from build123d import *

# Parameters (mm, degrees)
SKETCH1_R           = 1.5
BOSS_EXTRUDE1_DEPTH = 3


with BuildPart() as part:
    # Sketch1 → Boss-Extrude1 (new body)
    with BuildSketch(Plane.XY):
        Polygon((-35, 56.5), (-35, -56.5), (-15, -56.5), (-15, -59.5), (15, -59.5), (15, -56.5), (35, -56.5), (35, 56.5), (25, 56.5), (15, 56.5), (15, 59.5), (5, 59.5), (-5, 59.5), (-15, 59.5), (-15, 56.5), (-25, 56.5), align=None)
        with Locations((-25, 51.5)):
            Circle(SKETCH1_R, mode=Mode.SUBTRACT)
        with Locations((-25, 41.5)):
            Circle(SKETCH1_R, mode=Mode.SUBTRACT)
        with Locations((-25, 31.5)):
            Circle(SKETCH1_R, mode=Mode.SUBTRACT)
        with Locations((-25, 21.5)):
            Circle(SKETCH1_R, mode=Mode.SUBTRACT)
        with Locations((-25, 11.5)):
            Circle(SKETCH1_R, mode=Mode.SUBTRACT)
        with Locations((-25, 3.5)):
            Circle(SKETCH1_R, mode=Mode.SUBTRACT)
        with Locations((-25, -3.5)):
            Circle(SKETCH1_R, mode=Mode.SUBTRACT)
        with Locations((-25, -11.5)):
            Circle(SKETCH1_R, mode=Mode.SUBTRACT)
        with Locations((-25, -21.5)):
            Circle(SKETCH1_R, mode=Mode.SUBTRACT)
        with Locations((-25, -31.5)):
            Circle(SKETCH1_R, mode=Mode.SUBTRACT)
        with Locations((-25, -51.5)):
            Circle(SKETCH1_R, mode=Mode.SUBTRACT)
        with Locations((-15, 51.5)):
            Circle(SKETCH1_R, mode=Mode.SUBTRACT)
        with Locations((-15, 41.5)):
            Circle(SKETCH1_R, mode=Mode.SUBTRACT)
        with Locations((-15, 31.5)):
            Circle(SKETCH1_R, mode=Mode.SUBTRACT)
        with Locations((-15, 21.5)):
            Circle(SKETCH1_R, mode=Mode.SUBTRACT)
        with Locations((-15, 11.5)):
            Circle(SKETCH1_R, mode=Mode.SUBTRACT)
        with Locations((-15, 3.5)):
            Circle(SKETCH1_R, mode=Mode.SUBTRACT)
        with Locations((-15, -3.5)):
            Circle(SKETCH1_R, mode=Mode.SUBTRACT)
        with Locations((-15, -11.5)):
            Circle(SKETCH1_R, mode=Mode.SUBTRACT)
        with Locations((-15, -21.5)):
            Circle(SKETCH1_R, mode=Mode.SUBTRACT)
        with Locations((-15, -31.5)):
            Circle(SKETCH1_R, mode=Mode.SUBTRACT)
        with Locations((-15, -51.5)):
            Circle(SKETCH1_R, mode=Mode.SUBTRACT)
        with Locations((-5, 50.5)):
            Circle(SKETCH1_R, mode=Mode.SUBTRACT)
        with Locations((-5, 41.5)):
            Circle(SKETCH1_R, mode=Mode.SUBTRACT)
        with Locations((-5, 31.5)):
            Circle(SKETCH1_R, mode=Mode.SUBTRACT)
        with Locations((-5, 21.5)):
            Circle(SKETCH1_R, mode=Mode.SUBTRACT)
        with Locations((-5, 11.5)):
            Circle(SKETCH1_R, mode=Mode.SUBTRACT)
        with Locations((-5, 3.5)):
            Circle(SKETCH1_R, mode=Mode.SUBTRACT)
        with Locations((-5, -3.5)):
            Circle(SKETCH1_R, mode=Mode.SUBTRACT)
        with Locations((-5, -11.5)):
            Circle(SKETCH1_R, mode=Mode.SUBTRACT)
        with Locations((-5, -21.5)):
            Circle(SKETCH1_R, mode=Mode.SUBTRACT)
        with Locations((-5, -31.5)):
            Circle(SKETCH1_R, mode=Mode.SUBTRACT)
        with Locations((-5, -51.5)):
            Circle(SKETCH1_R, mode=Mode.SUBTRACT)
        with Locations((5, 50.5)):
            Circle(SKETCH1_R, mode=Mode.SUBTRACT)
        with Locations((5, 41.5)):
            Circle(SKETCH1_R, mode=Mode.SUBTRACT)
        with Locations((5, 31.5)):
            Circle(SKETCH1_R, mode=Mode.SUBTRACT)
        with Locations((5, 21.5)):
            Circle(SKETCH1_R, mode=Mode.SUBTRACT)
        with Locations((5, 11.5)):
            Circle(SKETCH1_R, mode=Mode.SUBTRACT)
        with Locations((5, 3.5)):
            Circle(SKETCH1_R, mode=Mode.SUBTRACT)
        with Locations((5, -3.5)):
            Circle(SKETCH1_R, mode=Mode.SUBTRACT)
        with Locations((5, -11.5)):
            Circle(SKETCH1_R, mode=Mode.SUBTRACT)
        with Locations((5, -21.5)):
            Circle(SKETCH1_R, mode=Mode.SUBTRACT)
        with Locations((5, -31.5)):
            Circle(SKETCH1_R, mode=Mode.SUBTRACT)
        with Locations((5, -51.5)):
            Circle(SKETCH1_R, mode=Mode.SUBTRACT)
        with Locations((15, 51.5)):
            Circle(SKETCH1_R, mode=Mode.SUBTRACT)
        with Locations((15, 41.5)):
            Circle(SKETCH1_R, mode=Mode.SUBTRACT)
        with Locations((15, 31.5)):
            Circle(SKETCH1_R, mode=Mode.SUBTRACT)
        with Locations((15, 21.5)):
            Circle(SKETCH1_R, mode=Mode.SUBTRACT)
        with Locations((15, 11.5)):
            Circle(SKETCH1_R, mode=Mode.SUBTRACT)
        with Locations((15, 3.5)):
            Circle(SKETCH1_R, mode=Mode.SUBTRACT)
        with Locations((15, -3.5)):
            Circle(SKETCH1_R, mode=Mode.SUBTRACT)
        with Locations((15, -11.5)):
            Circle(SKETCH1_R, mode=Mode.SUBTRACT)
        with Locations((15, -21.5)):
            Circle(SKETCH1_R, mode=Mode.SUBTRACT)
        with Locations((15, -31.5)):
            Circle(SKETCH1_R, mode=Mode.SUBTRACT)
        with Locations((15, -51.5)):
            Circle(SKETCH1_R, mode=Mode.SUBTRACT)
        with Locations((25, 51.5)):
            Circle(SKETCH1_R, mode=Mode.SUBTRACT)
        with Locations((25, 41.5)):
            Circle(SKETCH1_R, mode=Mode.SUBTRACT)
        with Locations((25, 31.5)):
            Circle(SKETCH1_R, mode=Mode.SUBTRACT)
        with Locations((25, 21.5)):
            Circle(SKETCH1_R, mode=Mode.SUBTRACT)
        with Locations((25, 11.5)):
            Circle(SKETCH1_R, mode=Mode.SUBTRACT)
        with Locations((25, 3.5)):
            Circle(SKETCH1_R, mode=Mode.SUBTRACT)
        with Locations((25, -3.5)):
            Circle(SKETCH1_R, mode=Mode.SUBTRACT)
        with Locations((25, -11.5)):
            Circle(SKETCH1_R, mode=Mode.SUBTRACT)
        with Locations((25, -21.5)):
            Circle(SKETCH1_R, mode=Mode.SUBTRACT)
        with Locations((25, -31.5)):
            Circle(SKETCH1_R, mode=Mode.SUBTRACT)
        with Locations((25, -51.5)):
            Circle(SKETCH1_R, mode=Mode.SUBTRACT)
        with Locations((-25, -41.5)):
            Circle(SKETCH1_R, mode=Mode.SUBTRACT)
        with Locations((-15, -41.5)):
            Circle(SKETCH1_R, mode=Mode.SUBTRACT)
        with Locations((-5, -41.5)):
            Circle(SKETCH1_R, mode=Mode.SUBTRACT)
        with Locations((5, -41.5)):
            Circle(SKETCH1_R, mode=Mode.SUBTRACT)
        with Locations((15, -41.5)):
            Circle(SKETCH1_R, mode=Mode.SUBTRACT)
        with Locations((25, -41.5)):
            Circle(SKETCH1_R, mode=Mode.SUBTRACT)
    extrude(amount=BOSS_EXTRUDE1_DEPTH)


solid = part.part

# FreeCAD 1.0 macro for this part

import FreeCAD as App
import Part
import Sketcher

V = App.Vector
Q = App.Units.Quantity

doc = App.newDocument("Part")
body = doc.addObject("PartDesign::Body", "Body")

# Sketch on XY plane
sketch1 = body.newObject("Sketcher::SketchObject", "Sketch")
sketch1.AttachmentSupport = (doc.getObject("XY_Plane"), [""])
sketch1.MapMode = "FlatFace"
sketch1.addGeometry([
    Part.LineSegment(V(-35, 56.5, 0), V(-35, -56.5, 0)),  # 0
    Part.LineSegment(V(-35, -56.5, 0), V(-15, -56.5, 0)),  # 1
    Part.LineSegment(V(-15, -56.5, 0), V(-15, -59.5, 0)),  # 2
    Part.LineSegment(V(-15, -59.5, 0), V(15, -59.5, 0)),  # 3
    Part.LineSegment(V(15, -59.5, 0), V(15, -56.5, 0)),  # 4
    Part.LineSegment(V(15, -56.5, 0), V(35, -56.5, 0)),  # 5
    Part.LineSegment(V(35, -56.5, 0), V(35, 56.5, 0)),  # 6
    Part.LineSegment(V(35, 56.5, 0), V(15, 56.5, 0)),  # 7
    Part.LineSegment(V(15, 56.5, 0), V(15, 59.5, 0)),  # 8
    Part.LineSegment(V(15, 59.5, 0), V(-15, 59.5, 0)),  # 9
    Part.LineSegment(V(-15, 59.5, 0), V(-15, 56.5, 0)),  # 10
    Part.LineSegment(V(-15, 56.5, 0), V(-35, 56.5, 0)),  # 11
    Part.Circle(V(-25, -51.5, 0), V(0, 0, 1), 1.5),  # 12
    Part.Circle(V(-25, -41.5, 0), V(0, 0, 1), 1.5),  # 13
    Part.Circle(V(-15, -51.5, 0), V(0, 0, 1), 1.5),  # 14
    Part.Circle(V(-15, -41.5, 0), V(0, 0, 1), 1.5),  # 15
    Part.Circle(V(-25, -31.5, 0), V(0, 0, 1), 1.5),  # 16
    Part.Circle(V(-15, -31.5, 0), V(0, 0, 1), 1.5),  # 17
    Part.Circle(V(-5, -51.5, 0), V(0, 0, 1), 1.5),  # 18
    Part.Circle(V(-5, -41.5, 0), V(0, 0, 1), 1.5),  # 19
    Part.Circle(V(-5, -31.5, 0), V(0, 0, 1), 1.5),  # 20
    Part.Circle(V(-25, -21.5, 0), V(0, 0, 1), 1.5),  # 21
    Part.Circle(V(-15, -21.5, 0), V(0, 0, 1), 1.5),  # 22
    Part.Circle(V(-25, -11.5, 0), V(0, 0, 1), 1.5),  # 23
    Part.Circle(V(-25, -3.5, 0), V(0, 0, 1), 1.5),  # 24
    Part.Circle(V(-15, -11.5, 0), V(0, 0, 1), 1.5),  # 25
    Part.Circle(V(-15, -3.5, 0), V(0, 0, 1), 1.5),  # 26
    Part.Circle(V(-5, -21.5, 0), V(0, 0, 1), 1.5),  # 27
    Part.Circle(V(-5, -11.5, 0), V(0, 0, 1), 1.5),  # 28
    Part.Circle(V(-5, -3.5, 0), V(0, 0, 1), 1.5),  # 29
    Part.Circle(V(5, -51.5, 0), V(0, 0, 1), 1.5),  # 30
    Part.Circle(V(5, -41.5, 0), V(0, 0, 1), 1.5),  # 31
    Part.Circle(V(5, -31.5, 0), V(0, 0, 1), 1.5),  # 32
    Part.Circle(V(15, -51.5, 0), V(0, 0, 1), 1.5),  # 33
    Part.Circle(V(15, -41.5, 0), V(0, 0, 1), 1.5),  # 34
    Part.Circle(V(25, -51.5, 0), V(0, 0, 1), 1.5),  # 35
    Part.Circle(V(25, -41.5, 0), V(0, 0, 1), 1.5),  # 36
    Part.Circle(V(15, -31.5, 0), V(0, 0, 1), 1.5),  # 37
    Part.Circle(V(25, -31.5, 0), V(0, 0, 1), 1.5),  # 38
    Part.Circle(V(5, -21.5, 0), V(0, 0, 1), 1.5),  # 39
    Part.Circle(V(5, -11.5, 0), V(0, 0, 1), 1.5),  # 40
    Part.Circle(V(5, -3.5, 0), V(0, 0, 1), 1.5),  # 41
    Part.Circle(V(15, -21.5, 0), V(0, 0, 1), 1.5),  # 42
    Part.Circle(V(25, -21.5, 0), V(0, 0, 1), 1.5),  # 43
    Part.Circle(V(15, -11.5, 0), V(0, 0, 1), 1.5),  # 44
    Part.Circle(V(15, -3.5, 0), V(0, 0, 1), 1.5),  # 45
    Part.Circle(V(25, -11.5, 0), V(0, 0, 1), 1.5),  # 46
    Part.Circle(V(25, -3.5, 0), V(0, 0, 1), 1.5),  # 47
    Part.Circle(V(-25, 3.5, 0), V(0, 0, 1), 1.5),  # 48
    Part.Circle(V(-25, 11.5, 0), V(0, 0, 1), 1.5),  # 49
    Part.Circle(V(-15, 3.5, 0), V(0, 0, 1), 1.5),  # 50
    Part.Circle(V(-15, 11.5, 0), V(0, 0, 1), 1.5),  # 51
    Part.Circle(V(-25, 21.5, 0), V(0, 0, 1), 1.5),  # 52
    Part.Circle(V(-15, 21.5, 0), V(0, 0, 1), 1.5),  # 53
    Part.Circle(V(-5, 3.5, 0), V(0, 0, 1), 1.5),  # 54
    Part.Circle(V(-5, 11.5, 0), V(0, 0, 1), 1.5),  # 55
    Part.Circle(V(-5, 21.5, 0), V(0, 0, 1), 1.5),  # 56
    Part.Circle(V(-25, 31.5, 0), V(0, 0, 1), 1.5),  # 57
    Part.Circle(V(-15, 31.5, 0), V(0, 0, 1), 1.5),  # 58
    Part.Circle(V(-25, 41.5, 0), V(0, 0, 1), 1.5),  # 59
    Part.Circle(V(-25, 51.5, 0), V(0, 0, 1), 1.5),  # 60
    Part.Circle(V(-15, 41.5, 0), V(0, 0, 1), 1.5),  # 61
    Part.Circle(V(-15, 51.5, 0), V(0, 0, 1), 1.5),  # 62
    Part.Circle(V(-5, 31.5, 0), V(0, 0, 1), 1.5),  # 63
    Part.Circle(V(-5, 41.5, 0), V(0, 0, 1), 1.5),  # 64
    Part.Circle(V(-5, 50.5, 0), V(0, 0, 1), 1.5),  # 65
    Part.Circle(V(5, 3.5, 0), V(0, 0, 1), 1.5),  # 66
    Part.Circle(V(5, 11.5, 0), V(0, 0, 1), 1.5),  # 67
    Part.Circle(V(5, 21.5, 0), V(0, 0, 1), 1.5),  # 68
    Part.Circle(V(15, 3.5, 0), V(0, 0, 1), 1.5),  # 69
    Part.Circle(V(15, 11.5, 0), V(0, 0, 1), 1.5),  # 70
    Part.Circle(V(25, 3.5, 0), V(0, 0, 1), 1.5),  # 71
    Part.Circle(V(25, 11.5, 0), V(0, 0, 1), 1.5),  # 72
    Part.Circle(V(15, 21.5, 0), V(0, 0, 1), 1.5),  # 73
    Part.Circle(V(25, 21.5, 0), V(0, 0, 1), 1.5),  # 74
    Part.Circle(V(5, 31.5, 0), V(0, 0, 1), 1.5),  # 75
    Part.Circle(V(5, 41.5, 0), V(0, 0, 1), 1.5),  # 76
    Part.Circle(V(5, 50.5, 0), V(0, 0, 1), 1.5),  # 77
    Part.Circle(V(15, 31.5, 0), V(0, 0, 1), 1.5),  # 78
    Part.Circle(V(25, 31.5, 0), V(0, 0, 1), 1.5),  # 79
    Part.Circle(V(15, 41.5, 0), V(0, 0, 1), 1.5),  # 80
    Part.Circle(V(15, 51.5, 0), V(0, 0, 1), 1.5),  # 81
    Part.Circle(V(25, 41.5, 0), V(0, 0, 1), 1.5),  # 82
    Part.Circle(V(25, 51.5, 0), V(0, 0, 1), 1.5),  # 83
], False)
sketch1.addConstraint([
    Sketcher.Constraint("Coincident", 0, 2, 1, 1),
    Sketcher.Constraint("Coincident", 1, 2, 2, 1),
    Sketcher.Constraint("Coincident", 2, 2, 3, 1),
    Sketcher.Constraint("Coincident", 3, 2, 4, 1),
    Sketcher.Constraint("Coincident", 4, 2, 5, 1),
    Sketcher.Constraint("Coincident", 5, 2, 6, 1),
    Sketcher.Constraint("Coincident", 6, 2, 7, 1),
    Sketcher.Constraint("Coincident", 7, 2, 8, 1),
    Sketcher.Constraint("Coincident", 8, 2, 9, 1),
    Sketcher.Constraint("Coincident", 9, 2, 10, 1),
    Sketcher.Constraint("Coincident", 10, 2, 11, 1),
    Sketcher.Constraint("Coincident", 11, 2, 0, 1),
    Sketcher.Constraint("Vertical", 0),
    Sketcher.Constraint("Horizontal", 1),
    Sketcher.Constraint("Vertical", 2),
    Sketcher.Constraint("Horizontal", 3),
    Sketcher.Constraint("Vertical", 4),
    Sketcher.Constraint("Horizontal", 5),
    Sketcher.Constraint("Vertical", 6),
    Sketcher.Constraint("Horizontal", 7),
    Sketcher.Constraint("Vertical", 8),
    Sketcher.Constraint("Horizontal", 9),
    Sketcher.Constraint("Vertical", 10),
    Sketcher.Constraint("Horizontal", 11),
    Sketcher.Constraint("Equal", 12, 13),
    Sketcher.Constraint("Equal", 13, 14),
    Sketcher.Constraint("Equal", 14, 15),
    Sketcher.Constraint("Equal", 15, 16),
    Sketcher.Constraint("Equal", 16, 17),
    Sketcher.Constraint("Equal", 17, 18),
    Sketcher.Constraint("Equal", 18, 19),
    Sketcher.Constraint("Equal", 19, 20),
    Sketcher.Constraint("Equal", 20, 21),
    Sketcher.Constraint("Equal", 21, 22),
    Sketcher.Constraint("Equal", 22, 23),
    Sketcher.Constraint("Equal", 23, 24),
    Sketcher.Constraint("Equal", 24, 25),
    Sketcher.Constraint("Equal", 25, 26),
    Sketcher.Constraint("Equal", 26, 27),
    Sketcher.Constraint("Equal", 27, 28),
    Sketcher.Constraint("Equal", 28, 29),
    Sketcher.Constraint("Equal", 29, 30),
    Sketcher.Constraint("Equal", 30, 31),
    Sketcher.Constraint("Equal", 31, 32),
    Sketcher.Constraint("Equal", 32, 33),
    Sketcher.Constraint("Equal", 33, 34),
    Sketcher.Constraint("Equal", 34, 35),
    Sketcher.Constraint("Equal", 35, 36),
    Sketcher.Constraint("Equal", 36, 37),
    Sketcher.Constraint("Equal", 37, 38),
    Sketcher.Constraint("Equal", 38, 39),
    Sketcher.Constraint("Equal", 39, 40),
    Sketcher.Constraint("Equal", 40, 41),
    Sketcher.Constraint("Equal", 41, 42),
    Sketcher.Constraint("Equal", 42, 43),
    Sketcher.Constraint("Equal", 43, 44),
    Sketcher.Constraint("Equal", 44, 45),
    Sketcher.Constraint("Equal", 45, 46),
    Sketcher.Constraint("Equal", 46, 47),
    Sketcher.Constraint("Equal", 47, 48),
    Sketcher.Constraint("Equal", 48, 49),
    Sketcher.Constraint("Equal", 49, 50),
    Sketcher.Constraint("Equal", 50, 51),
    Sketcher.Constraint("Equal", 51, 52),
    Sketcher.Constraint("Equal", 52, 53),
    Sketcher.Constraint("Equal", 53, 54),
    Sketcher.Constraint("Equal", 54, 55),
    Sketcher.Constraint("Equal", 55, 56),
    Sketcher.Constraint("Equal", 56, 57),
    Sketcher.Constraint("Equal", 57, 58),
    Sketcher.Constraint("Equal", 58, 59),
    Sketcher.Constraint("Equal", 59, 60),
    Sketcher.Constraint("Equal", 60, 61),
    Sketcher.Constraint("Equal", 61, 62),
    Sketcher.Constraint("Equal", 62, 63),
    Sketcher.Constraint("Equal", 63, 64),
    Sketcher.Constraint("Equal", 64, 65),
    Sketcher.Constraint("Equal", 65, 66),
    Sketcher.Constraint("Equal", 66, 67),
    Sketcher.Constraint("Equal", 67, 68),
    Sketcher.Constraint("Equal", 68, 69),
    Sketcher.Constraint("Equal", 69, 70),
    Sketcher.Constraint("Equal", 70, 71),
    Sketcher.Constraint("Equal", 71, 72),
    Sketcher.Constraint("Equal", 72, 73),
    Sketcher.Constraint("Equal", 73, 74),
    Sketcher.Constraint("Equal", 74, 75),
    Sketcher.Constraint("Equal", 75, 76),
    Sketcher.Constraint("Equal", 76, 77),
    Sketcher.Constraint("Equal", 77, 78),
    Sketcher.Constraint("Equal", 78, 79),
    Sketcher.Constraint("Equal", 79, 80),
    Sketcher.Constraint("Equal", 80, 81),
    Sketcher.Constraint("Equal", 81, 82),
    Sketcher.Constraint("Equal", 82, 83),
    Sketcher.Constraint("Symmetric", 47, 3, 48, 3, -1, 1),
    Sketcher.Constraint("Symmetric", 46, 3, 49, 3, -1, 1),
    Sketcher.Constraint("Symmetric", 45, 3, 50, 3, -1, 1),
    Sketcher.Constraint("Symmetric", 44, 3, 51, 3, -1, 1),
    Sketcher.Constraint("Symmetric", 43, 3, 52, 3, -1, 1),
    Sketcher.Constraint("Symmetric", 42, 3, 53, 3, -1, 1),
    Sketcher.Constraint("Symmetric", 41, 3, 54, 3, -1, 1),
    Sketcher.Constraint("Symmetric", 40, 3, 55, 3, -1, 1),
    Sketcher.Constraint("Symmetric", 39, 3, 56, 3, -1, 1),
    Sketcher.Constraint("Symmetric", 38, 3, 57, 3, -1, 1),
    Sketcher.Constraint("Symmetric", 37, 3, 58, 3, -1, 1),
    Sketcher.Constraint("Symmetric", 36, 3, 59, 3, -1, 1),
    Sketcher.Constraint("Symmetric", 35, 3, 60, 3, -1, 1),
    Sketcher.Constraint("Symmetric", 34, 3, 61, 3, -1, 1),
    Sketcher.Constraint("Symmetric", 33, 3, 62, 3, -1, 1),
    Sketcher.Constraint("Symmetric", 32, 3, 63, 3, -1, 1),
    Sketcher.Constraint("Symmetric", 31, 3, 64, 3, -1, 1),
    Sketcher.Constraint("Symmetric", 29, 3, 66, 3, -1, 1),
    Sketcher.Constraint("Symmetric", 28, 3, 67, 3, -1, 1),
    Sketcher.Constraint("Symmetric", 27, 3, 68, 3, -1, 1),
    Sketcher.Constraint("Symmetric", 26, 3, 69, 3, -1, 1),
    Sketcher.Constraint("Symmetric", 25, 3, 70, 3, -1, 1),
    Sketcher.Constraint("Symmetric", 24, 3, 71, 3, -1, 1),
    Sketcher.Constraint("Symmetric", 23, 3, 72, 3, -1, 1),
    Sketcher.Constraint("Symmetric", 22, 3, 73, 3, -1, 1),
    Sketcher.Constraint("Symmetric", 21, 3, 74, 3, -1, 1),
    Sketcher.Constraint("Symmetric", 20, 3, 75, 3, -1, 1),
    Sketcher.Constraint("Symmetric", 19, 3, 76, 3, -1, 1),
    Sketcher.Constraint("Symmetric", 17, 3, 78, 3, -1, 1),
    Sketcher.Constraint("Symmetric", 16, 3, 79, 3, -1, 1),
    Sketcher.Constraint("Symmetric", 15, 3, 80, 3, -1, 1),
    Sketcher.Constraint("Symmetric", 14, 3, 81, 3, -1, 1),
    Sketcher.Constraint("Symmetric", 13, 3, 82, 3, -1, 1),
    Sketcher.Constraint("Symmetric", 12, 3, 83, 3, -1, 1),
    Sketcher.Constraint("Symmetric", 0, 2, 6, 2, -1, 1),
    Sketcher.Constraint("Symmetric", 2, 2, 8, 2, -1, 1),
    Sketcher.Constraint("Symmetric", 4, 2, 10, 2, -1, 1),
    Sketcher.Constraint("Symmetric", 18, 3, 30, 3, -2),
    Sketcher.Constraint("Symmetric", 19, 3, 31, 3, -2),
    Sketcher.Constraint("Symmetric", 20, 3, 32, 3, -2),
    Sketcher.Constraint("Symmetric", 14, 3, 33, 3, -2),
    Sketcher.Constraint("Symmetric", 15, 3, 34, 3, -2),
    Sketcher.Constraint("Symmetric", 12, 3, 35, 3, -2),
    Sketcher.Constraint("Symmetric", 13, 3, 36, 3, -2),
    Sketcher.Constraint("Symmetric", 17, 3, 37, 3, -2),
    Sketcher.Constraint("Symmetric", 16, 3, 38, 3, -2),
    Sketcher.Constraint("Symmetric", 27, 3, 39, 3, -2),
    Sketcher.Constraint("Symmetric", 28, 3, 40, 3, -2),
    Sketcher.Constraint("Symmetric", 29, 3, 41, 3, -2),
    Sketcher.Constraint("Symmetric", 22, 3, 42, 3, -2),
    Sketcher.Constraint("Symmetric", 21, 3, 43, 3, -2),
    Sketcher.Constraint("Symmetric", 25, 3, 44, 3, -2),
    Sketcher.Constraint("Symmetric", 26, 3, 45, 3, -2),
    Sketcher.Constraint("Symmetric", 23, 3, 46, 3, -2),
    Sketcher.Constraint("Symmetric", 24, 3, 47, 3, -2),
    Sketcher.Constraint("Symmetric", 65, 3, 77, 3, -2),
    Sketcher.Constraint("Symmetric", 1, 2, 4, 2, -2),
    Sketcher.Constraint("Horizontal", 12, 3, 14, 3),
    Sketcher.Constraint("Horizontal", 13, 3, 15, 3),
    Sketcher.Constraint("Horizontal", 16, 3, 17, 3),
    Sketcher.Constraint("Horizontal", 14, 3, 18, 3),
    Sketcher.Constraint("Horizontal", 15, 3, 19, 3),
    Sketcher.Constraint("Horizontal", 17, 3, 20, 3),
    Sketcher.Constraint("Horizontal", 21, 3, 22, 3),
    Sketcher.Constraint("Horizontal", 23, 3, 25, 3),
    Sketcher.Constraint("Horizontal", 24, 3, 26, 3),
    Sketcher.Constraint("Horizontal", 22, 3, 27, 3),
    Sketcher.Constraint("Horizontal", 25, 3, 28, 3),
    Sketcher.Constraint("Horizontal", 26, 3, 29, 3),
    Sketcher.Constraint("Vertical", 12, 3, 13, 3),
    Sketcher.Constraint("Vertical", 14, 3, 15, 3),
    Sketcher.Constraint("Vertical", 13, 3, 16, 3),
    Sketcher.Constraint("Vertical", 15, 3, 17, 3),
    Sketcher.Constraint("Vertical", 18, 3, 19, 3),
    Sketcher.Constraint("Vertical", 19, 3, 20, 3),
    Sketcher.Constraint("Vertical", 16, 3, 21, 3),
    Sketcher.Constraint("Vertical", 17, 3, 22, 3),
    Sketcher.Constraint("Vertical", 21, 3, 23, 3),
    Sketcher.Constraint("Vertical", 23, 3, 24, 3),
    Sketcher.Constraint("Vertical", 22, 3, 25, 3),
    Sketcher.Constraint("Vertical", 25, 3, 26, 3),
    Sketcher.Constraint("Vertical", 20, 3, 27, 3),
    Sketcher.Constraint("Vertical", 27, 3, 28, 3),
    Sketcher.Constraint("Vertical", 28, 3, 29, 3),
    Sketcher.Constraint("Vertical", 64, 3, 65, 3),
    Sketcher.Constraint("Vertical", 62, 3, 1, 2),
    Sketcher.Constraint("Diameter", 12, Q("3 mm")),
    Sketcher.Constraint("DistanceX", 1, 1, 1, 2, Q("20 mm")),
    Sketcher.Constraint("DistanceX", 3, 1, 3, 2, Q("30 mm")),
    Sketcher.Constraint("DistanceY", 0, 2, 0, 1, Q("113 mm")),
    Sketcher.Constraint("DistanceY", 2, 2, 2, 1, Q("3 mm")),
    Sketcher.Constraint("DistanceX", 12, 3, -1, 1, Q("25 mm")),
    Sketcher.Constraint("DistanceX", 18, 3, -1, 1, Q("5 mm")),
    Sketcher.Constraint("DistanceY", 12, 3, -1, 1, Q("51.5 mm")),
    Sketcher.Constraint("DistanceY", 13, 3, -1, 1, Q("41.5 mm")),
    Sketcher.Constraint("DistanceY", 16, 3, -1, 1, Q("31.5 mm")),
    Sketcher.Constraint("DistanceY", 21, 3, -1, 1, Q("21.5 mm")),
    Sketcher.Constraint("DistanceY", 23, 3, -1, 1, Q("11.5 mm")),
    Sketcher.Constraint("DistanceY", 24, 3, -1, 1, Q("3.5 mm")),
    Sketcher.Constraint("DistanceY", -1, 1, 65, 3, Q("50.5 mm")),
])
pad1 = body.newObject("PartDesign::Pad", "Pad")
pad1.Profile = sketch1
pad1.Length = 3

doc.recompute()
